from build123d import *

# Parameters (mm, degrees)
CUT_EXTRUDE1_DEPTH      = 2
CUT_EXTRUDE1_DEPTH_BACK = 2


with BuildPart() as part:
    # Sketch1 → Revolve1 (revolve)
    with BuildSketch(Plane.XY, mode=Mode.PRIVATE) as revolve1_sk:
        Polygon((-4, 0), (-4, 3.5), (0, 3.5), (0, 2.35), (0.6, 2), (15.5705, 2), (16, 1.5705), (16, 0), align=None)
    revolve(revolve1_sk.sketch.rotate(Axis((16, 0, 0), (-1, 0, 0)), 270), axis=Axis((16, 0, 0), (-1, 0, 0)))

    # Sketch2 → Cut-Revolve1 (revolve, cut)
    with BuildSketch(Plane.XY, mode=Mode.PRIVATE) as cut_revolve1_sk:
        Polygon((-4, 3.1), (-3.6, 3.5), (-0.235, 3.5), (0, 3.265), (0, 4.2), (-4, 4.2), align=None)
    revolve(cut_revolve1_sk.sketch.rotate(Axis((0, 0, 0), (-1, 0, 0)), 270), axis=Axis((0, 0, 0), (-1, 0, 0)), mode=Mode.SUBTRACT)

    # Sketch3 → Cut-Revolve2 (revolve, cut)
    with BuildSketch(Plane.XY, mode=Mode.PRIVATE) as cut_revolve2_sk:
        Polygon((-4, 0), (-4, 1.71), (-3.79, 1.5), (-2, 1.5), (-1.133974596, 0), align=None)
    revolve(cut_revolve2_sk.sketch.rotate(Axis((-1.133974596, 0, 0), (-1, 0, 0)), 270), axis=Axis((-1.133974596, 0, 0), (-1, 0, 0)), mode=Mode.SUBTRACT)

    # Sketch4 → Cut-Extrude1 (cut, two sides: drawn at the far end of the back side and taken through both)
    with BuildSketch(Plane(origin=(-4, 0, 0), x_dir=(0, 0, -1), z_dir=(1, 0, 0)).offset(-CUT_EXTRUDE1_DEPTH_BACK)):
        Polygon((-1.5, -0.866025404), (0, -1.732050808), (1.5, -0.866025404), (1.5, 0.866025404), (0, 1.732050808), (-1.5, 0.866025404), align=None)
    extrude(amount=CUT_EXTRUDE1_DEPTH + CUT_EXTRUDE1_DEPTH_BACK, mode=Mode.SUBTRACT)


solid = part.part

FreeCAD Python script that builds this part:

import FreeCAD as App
import Part
import Sketcher
from FreeCAD import Vector
Q = App.Units.Quantity

doc = App.newDocument("Part")
body = doc.addObject("PartDesign::Body", "Body")

sketch1 = body.newObject("Sketcher::SketchObject", "Sketch")
sketch1.AttachmentSupport = (doc.getObject("XY_Plane"), [""])
sketch1.MapMode = "FlatFace"
sketch1.addGeometry([
    Part.LineSegment(Vector(-4, 3.5, 0), Vector(-4, 0, 0)),
    Part.LineSegment(Vector(-4, 0, 0), Vector(16, 0, 0)),
    Part.LineSegment(Vector(16, 0, 0), Vector(16, 1.6, 0)),
    Part.LineSegment(Vector(16, 1.6, 0), Vector(15.6, 2, 0)),
    Part.LineSegment(Vector(15.6, 2, 0), Vector(0.6, 2, 0)),
    Part.LineSegment(Vector(0.6, 2, 0), Vector(0, 2.4, 0)),
    Part.LineSegment(Vector(0, 2.4, 0), Vector(0, 3.5, 0)),
    Part.LineSegment(Vector(0, 3.5, 0), Vector(-4, 3.5, 0)),
], False)
sketch1.addConstraint([
    Sketcher.Constraint("Coincident", 0, 2, 1, 1),
    Sketcher.Constraint("Coincident", 1, 2, 2, 1),
    Sketcher.Constraint("Coincident", 2, 2, 3, 1),
    Sketcher.Constraint("Coincident", 3, 2, 4, 1),
    Sketcher.Constraint("Coincident", 4, 2, 5, 1),
    Sketcher.Constraint("Coincident", 5, 2, 6, 1),
    Sketcher.Constraint("Coincident", 6, 2, 7, 1),
    Sketcher.Constraint("Coincident", 7, 2, 0, 1),
    Sketcher.Constraint("Vertical", 0),
    Sketcher.Constraint("Horizontal", 1),
    Sketcher.Constraint("Vertical", 2),
    Sketcher.Constraint("Horizontal", 4),
    Sketcher.Constraint("Vertical", 6),
    Sketcher.Constraint("Horizontal", 7),
    Sketcher.Constraint("PointOnObject", 0, 2, -1),
    Sketcher.Constraint("PointOnObject", 5, 2, -2),
    Sketcher.Constraint("DistanceX", 1, 1, 1, 2, Q("20 mm")),
    Sketcher.Constraint("DistanceX", 7, 2, 7, 1, Q("4 mm")),
    Sketcher.Constraint("Angle", 3, Q("135 deg")),
    Sketcher.Constraint("DistanceY", 0, 2, 0, 1, Q("3.5 mm")),
    Sketcher.Constraint("DistanceY", -1, 1, 3, 2, Q("2 mm")),
    Sketcher.Constraint("DistanceY", 6, 1, 6, 2, Q("1.15 mm")),
    Sketcher.Constraint("DistanceX", -1, 1, 4, 2, Q("0.6 mm")),
    Sketcher.Constraint("DistanceX", 4, 2, 4, 1, Q("14.9705 mm")),
])
revolution = body.newObject("PartDesign::Revolution", "Revolution")
revolution.Profile = sketch1
revolution.ReferenceAxis = (sketch1, ["H_Axis"])
revolution.Angle = 360

sketch2 = body.newObject("Sketcher::SketchObject", "Sketch001")
sketch2.AttachmentSupport = (doc.getObject("XY_Plane"), [""])
sketch2.MapMode = "FlatFace"
sketch2.addGeometry([
    Part.LineSegment(Vector(-4, 3.1, 0), Vector(-3.6, 3.5, 0)),
    Part.LineSegment(Vector(-3.6, 3.5, 0), Vector(-0.23, 3.5, 0)),
    Part.LineSegment(Vector(-0.23, 3.5, 0), Vector(0, 3.27, 0)),
    Part.LineSegment(Vector(0, 3.27, 0), Vector(0, 4.2, 0)),
    Part.LineSegment(Vector(0, 4.2, 0), Vector(-4, 4.2, 0)),
    Part.LineSegment(Vector(-4, 4.2, 0), Vector(-4, 3.1, 0)),
], False)
sketch2.addConstraint([
    Sketcher.Constraint("Coincident", 0, 2, 1, 1),
    Sketcher.Constraint("Coincident", 1, 2, 2, 1),
    Sketcher.Constraint("Coincident", 2, 2, 3, 1),
    Sketcher.Constraint("Coincident", 3, 2, 4, 1),
    Sketcher.Constraint("Coincident", 4, 2, 5, 1),
    Sketcher.Constraint("Coincident", 5, 2, 0, 1),
    Sketcher.Constraint("Horizontal", 1),
    Sketcher.Constraint("Vertical", 3),
    Sketcher.Constraint("Horizontal", 4),
    Sketcher.Constraint("Vertical", 5),
    Sketcher.Constraint("PointOnObject", 2, 2, -2),
    Sketcher.Constraint("Perpendicular", 0, 2),
    Sketcher.Constraint("DistanceX", 4, 2, 4, 1, Q("4 mm")),
    Sketcher.Constraint("Angle", 0, Q("45 deg")),
    Sketcher.Constraint("DistanceY", 5, 2, 5, 1, Q("1.1 mm")),
    Sketcher.Constraint("DistanceX", 0, 2, -1, 1, Q("3.6 mm")),
    Sketcher.Constraint("DistanceY", -1, 1, 0, 2, Q("3.5 mm")),
    Sketcher.Constraint("DistanceX", 1, 1, 1, 2, Q("3.365 mm")),
])
groove = body.newObject("PartDesign::Groove", "Groove")
groove.Profile = sketch2
groove.ReferenceAxis = (sketch2, ["H_Axis"])
groove.Angle = 360

sketch3 = body.newObject("Sketcher::SketchObject", "Sketch002")
sketch3.AttachmentSupport = (doc.getObject("XY_Plane"), [""])
sketch3.MapMode = "FlatFace"
sketch3.addGeometry([
    Part.LineSegment(Vector(-4, 1.71, 0), Vector(-4, 0, 0)),
    Part.LineSegment(Vector(-4, 0, 0), Vector(-1.13, 0, 0)),
    Part.LineSegment(Vector(-1.13, 0, 0), Vector(-2, 1.5, 0)),
    Part.LineSegment(Vector(-2, 1.5, 0), Vector(-3.79, 1.5, 0)),
    Part.LineSegment(Vector(-3.79, 1.5, 0), Vector(-4, 1.71, 0)),
], False)
sketch3.addConstraint([
    Sketcher.Constraint("Coincident", 0, 2, 1, 1),
    Sketcher.Constraint("Coincident", 1, 2, 2, 1),
    Sketcher.Constraint("Coincident", 2, 2, 3, 1),
    Sketcher.Constraint("Coincident", 3, 2, 4, 1),
    Sketcher.Constraint("Coincident", 4, 2, 0, 1),
    Sketcher.Constraint("Vertical", 0),
    Sketcher.Constraint("Horizontal", 1),
    Sketcher.Constraint("Horizontal", 3),
    Sketcher.Constraint("PointOnObject", 0, 2, -1),
    Sketcher.Constraint("Angle", 2, Q("120 deg")),
    Sketcher.Constraint("Angle", 4, Q("135 deg")),
    Sketcher.Constraint("DistanceX", 0, 2, -1, 1, Q("4 mm")),
    Sketcher.Constraint("DistanceX", 2, 2, -1, 1, Q("2 mm")),
    Sketcher.Constraint("DistanceX", 3, 2, 3, 1, Q("1.79 mm")),
    Sketcher.Constraint("DistanceY", 0, 2, 0, 1, Q("1.71 mm")),
])
groove2 = body.newObject("PartDesign::Groove", "Groove001")
groove2.Profile = sketch3
groove2.ReferenceAxis = (sketch3, ["H_Axis"])
groove2.Angle = 360

sketch4 = body.newObject("Sketcher::SketchObject", "Sketch003")
sketch4.AttachmentSupport = (doc.getObject("YZ_Plane"), [""])
sketch4.MapMode = "FlatFace"
sketch4.AttachmentOffset = App.Placement(Vector(0, 0, -4), App.Rotation())
sketch4.addGeometry([
    Part.LineSegment(Vector(-0.9, 1.5, 0), Vector(-1.7, 0, 0)),
    Part.LineSegment(Vector(-1.7, 0, 0), Vector(-0.9, -1.5, 0)),
    Part.LineSegment(Vector(-0.9, -1.5, 0), Vector(0.9, -1.5, 0)),
    Part.LineSegment(Vector(0.9, -1.5, 0), Vector(1.7, 0, 0)),
    Part.LineSegment(Vector(1.7, 0, 0), Vector(0.9, 1.5, 0)),
    Part.LineSegment(Vector(0.9, 1.5, 0), Vector(-0.9, 1.5, 0)),
], False)
sketch4.addConstraint([
    Sketcher.Constraint("Coincident", 0, 2, 1, 1),
    Sketcher.Constraint("Coincident", 1, 2, 2, 1),
    Sketcher.Constraint("Coincident", 2, 2, 3, 1),
    Sketcher.Constraint("Coincident", 3, 2, 4, 1),
    Sketcher.Constraint("Coincident", 4, 2, 5, 1),
    Sketcher.Constraint("Coincident", 5, 2, 0, 1),
    Sketcher.Constraint("Horizontal", 2),
    Sketcher.Constraint("Horizontal", 5),
    Sketcher.Constraint("Symmetric", 0, 2, 3, 2, -1, 1),
    Sketcher.Constraint("Symmetric", 1, 2, 4, 2, -1, 1),
    Sketcher.Constraint("PointOnObject", 0, 2, -1),
    Sketcher.Constraint("Parallel", 0, 3),
    Sketcher.Constraint("Vertical", 2, 2, 4, 2),
    Sketcher.Constraint("Angle", 0, Q("-120 deg")),
    Sketcher.Constraint("DistanceY", 2, 2, 4, 2, Q("3 mm")),
    Sketcher.Constraint("DistanceX", 2, 1, 2, 2, Q("1.732051 mm")),
])
pocket1 = body.newObject("PartDesign::Pocket", "Pocket")
pocket1.Profile = sketch4
pocket1.Type = "TwoLengths"
pocket1.Length = 2
pocket1.Length2 = 2
pocket1.Reversed = True

doc.recompute()
